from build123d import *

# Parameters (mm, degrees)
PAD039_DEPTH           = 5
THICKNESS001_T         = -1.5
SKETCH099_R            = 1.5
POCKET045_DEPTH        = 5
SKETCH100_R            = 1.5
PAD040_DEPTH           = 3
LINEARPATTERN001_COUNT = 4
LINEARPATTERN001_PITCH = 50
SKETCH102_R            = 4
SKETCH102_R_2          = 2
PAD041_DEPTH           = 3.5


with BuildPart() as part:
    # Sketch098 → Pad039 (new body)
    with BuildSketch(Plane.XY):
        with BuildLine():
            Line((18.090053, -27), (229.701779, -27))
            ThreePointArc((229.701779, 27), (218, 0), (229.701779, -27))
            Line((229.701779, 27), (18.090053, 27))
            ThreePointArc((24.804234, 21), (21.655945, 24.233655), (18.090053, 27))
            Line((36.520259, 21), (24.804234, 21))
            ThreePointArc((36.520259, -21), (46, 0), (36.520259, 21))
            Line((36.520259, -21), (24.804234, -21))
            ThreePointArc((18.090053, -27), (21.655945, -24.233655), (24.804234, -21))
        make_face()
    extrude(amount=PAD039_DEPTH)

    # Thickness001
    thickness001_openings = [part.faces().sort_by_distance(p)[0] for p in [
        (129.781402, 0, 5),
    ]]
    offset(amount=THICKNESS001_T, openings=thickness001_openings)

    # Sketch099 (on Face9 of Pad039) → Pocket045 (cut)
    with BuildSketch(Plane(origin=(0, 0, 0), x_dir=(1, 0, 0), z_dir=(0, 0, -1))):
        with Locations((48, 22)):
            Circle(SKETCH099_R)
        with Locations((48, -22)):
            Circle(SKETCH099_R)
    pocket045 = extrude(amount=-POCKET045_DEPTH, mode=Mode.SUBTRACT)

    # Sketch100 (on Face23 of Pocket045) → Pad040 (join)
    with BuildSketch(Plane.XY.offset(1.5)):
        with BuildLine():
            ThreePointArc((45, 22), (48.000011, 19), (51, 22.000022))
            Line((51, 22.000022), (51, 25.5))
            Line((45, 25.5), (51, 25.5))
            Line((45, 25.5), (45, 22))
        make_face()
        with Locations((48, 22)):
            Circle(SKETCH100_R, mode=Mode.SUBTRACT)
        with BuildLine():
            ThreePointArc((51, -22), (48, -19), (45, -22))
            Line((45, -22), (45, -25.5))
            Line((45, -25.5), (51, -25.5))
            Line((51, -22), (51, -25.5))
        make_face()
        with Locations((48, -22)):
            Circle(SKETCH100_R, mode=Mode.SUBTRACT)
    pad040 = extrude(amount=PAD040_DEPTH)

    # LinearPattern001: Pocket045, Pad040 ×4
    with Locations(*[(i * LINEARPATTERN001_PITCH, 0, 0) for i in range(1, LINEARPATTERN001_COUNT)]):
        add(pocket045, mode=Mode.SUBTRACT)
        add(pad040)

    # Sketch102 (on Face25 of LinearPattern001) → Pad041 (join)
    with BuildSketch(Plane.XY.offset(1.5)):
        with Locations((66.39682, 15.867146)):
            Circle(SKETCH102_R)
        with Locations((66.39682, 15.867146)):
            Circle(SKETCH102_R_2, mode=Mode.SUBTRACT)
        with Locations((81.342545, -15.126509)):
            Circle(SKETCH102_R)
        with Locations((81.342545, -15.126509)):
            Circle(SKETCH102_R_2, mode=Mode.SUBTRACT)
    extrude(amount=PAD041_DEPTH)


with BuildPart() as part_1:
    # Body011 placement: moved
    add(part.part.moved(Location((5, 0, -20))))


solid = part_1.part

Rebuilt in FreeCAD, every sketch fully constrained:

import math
import FreeCAD as App
import Part
import Sketcher


def faces_at(feature, points):
    """Names of the faces that lie closest to the given points."""
    faces = feature.Shape.Faces
    near = lambda p: min(range(len(faces)), key=lambda i: faces[i].distToShape(Part.Vertex(*p))[0])
    return sorted({f"Face{near(p) + 1}" for p in points})

doc = App.newDocument("Part")
body = doc.addObject("PartDesign::Body", "Body")

sketch1 = body.newObject("Sketcher::SketchObject", "Sketch")
sketch1.AttachmentSupport = (doc.getObject("XY_Plane"), [""])
sketch1.MapMode = "FlatFace"
sketch1.addGeometry(Part.LineSegment(App.Vector(18, -27, 0), App.Vector(230, -27, 0)), False)
sketch1.addGeometry(Part.ArcOfCircle(Part.Circle(App.Vector(255, 0, 0), App.Vector(0, 0, 1), 37), math.radians(133), math.radians(227)), False)
sketch1.addGeometry(Part.LineSegment(App.Vector(230, 27, 0), App.Vector(18, 27, 0)), False)
sketch1.addGeometry(Part.ArcOfCircle(Part.Circle(App.Vector(0, 0, 0), App.Vector(0, 0, 1), 33), math.radians(40.25), math.radians(56.18)), False)
sketch1.addGeometry(Part.LineSegment(App.Vector(25, 21, 0), App.Vector(37, 21, 0)), False)
sketch1.addGeometry(Part.ArcOfCircle(Part.Circle(App.Vector(18, 0, 0), App.Vector(0, 0, 1), 28), math.radians(-49), math.radians(49)), False)
sketch1.addGeometry(Part.LineSegment(App.Vector(37, -21, 0), App.Vector(25, -21, 0)), False)
sketch1.addGeometry(Part.ArcOfCircle(Part.Circle(App.Vector(0, 0, 0), App.Vector(0, 0, 1), 33), math.radians(-56.18), math.radians(-40.25)), False)
sketch1.addConstraint(Sketcher.Constraint("Coincident", 0, 2, 1, 2))
sketch1.addConstraint(Sketcher.Constraint("Coincident", 1, 1, 2, 1))
sketch1.addConstraint(Sketcher.Constraint("Coincident", 2, 2, 3, 2))
sketch1.addConstraint(Sketcher.Constraint("Coincident", 3, 1, 4, 1))
sketch1.addConstraint(Sketcher.Constraint("Coincident", 4, 2, 5, 2))
sketch1.addConstraint(Sketcher.Constraint("Coincident", 5, 1, 6, 1))
sketch1.addConstraint(Sketcher.Constraint("Coincident", 6, 2, 7, 2))
sketch1.addConstraint(Sketcher.Constraint("Coincident", 7, 1, 0, 1))
sketch1.addConstraint(Sketcher.Constraint("Horizontal", 0))
sketch1.addConstraint(Sketcher.Constraint("Horizontal", 2))
sketch1.addConstraint(Sketcher.Constraint("Horizontal", 4))
sketch1.addConstraint(Sketcher.Constraint("Horizontal", 6))
sketch1.addConstraint(Sketcher.Constraint("Equal", 3, 7))
sketch1.addConstraint(Sketcher.Constraint("Symmetric", 3, 3, 7, 3, -1))
sketch1.addConstraint(Sketcher.Constraint("Symmetric", 0, 2, 1, 1, -1))
sketch1.addConstraint(Sketcher.Constraint("Symmetric", 4, 2, 5, 1, -1))
sketch1.addConstraint(Sketcher.Constraint("Radius", 1, 36.999999))
sketch1.addConstraint(Sketcher.Constraint("Radius", 5, 28.0))
sketch1.addConstraint(Sketcher.Constraint("DistanceX", -1, 1, 1, 3, 254.999999))
sketch1.addConstraint(Sketcher.Constraint("DistanceX", -1, 1, 5, 3, 18.0))
sketch1.addConstraint(Sketcher.Constraint("DistanceY", 0, 2, -1, 1, 27.0))
sketch1.addConstraint(Sketcher.Constraint("DistanceY", -1, 1, 3, 1, 21.0))
sketch1.addConstraint(Sketcher.Constraint("Radius", 3, 32.500052))
sketch1.addConstraint(Sketcher.Constraint("DistanceX", 0, 1, 0, 2, 211.611726))
sketch1.addConstraint(Sketcher.Constraint("DistanceX", 4, 1, 4, 2, 11.716025))
pad1 = body.newObject("PartDesign::Pad", "Pad")
pad1.Profile = sketch1
pad1.Length = 5
doc.recompute()

thickness = body.newObject("PartDesign::Thickness", "Thickness")
thickness.Base = (pad1, faces_at(pad1, [(123.896, 0, 5)]))
thickness.Value = 1.5
thickness.Reversed = True
thickness.Join = "Arc"

sketch2 = body.newObject("Sketcher::SketchObject", "Sketch001")
sketch2.AttachmentSupport = (doc.getObject("XY_Plane"), [""])
sketch2.MapMode = "FlatFace"
sketch2.addGeometry(Part.Circle(App.Vector(48, -22, 0), App.Vector(0, 0, 1), 1.5), False)
sketch2.addGeometry(Part.Circle(App.Vector(48, 22, 0), App.Vector(0, 0, 1), 1.5), False)
sketch2.addConstraint(Sketcher.Constraint("Equal", 0, 1))
sketch2.addConstraint(Sketcher.Constraint("Symmetric", 0, 3, 1, 3, -1))
sketch2.addConstraint(Sketcher.Constraint("Diameter", 0, 3.0))
sketch2.addConstraint(Sketcher.Constraint("DistanceX", -1, 1, 0, 3, 48.0))
sketch2.addConstraint(Sketcher.Constraint("DistanceY", 0, 3, -1, 1, 22.0))
pocket1 = body.newObject("PartDesign::Pocket", "Pocket")
pocket1.Profile = sketch2
pocket1.Length = 5
pocket1.Reversed = True

sketch3 = body.newObject("Sketcher::SketchObject", "Sketch002")
sketch3.AttachmentSupport = (doc.getObject("XY_Plane"), [""])
sketch3.MapMode = "FlatFace"
sketch3.AttachmentOffset = App.Placement(App.Vector(0, 0, 1.5), App.Rotation())
sketch3.addGeometry(Part.ArcOfCircle(Part.Circle(App.Vector(48, 22, 0), App.Vector(0, 0, 1), 3), math.radians(180), math.radians(360.00042)), False)
sketch3.addGeometry(Part.LineSegment(App.Vector(51, 22.000022, 0), App.Vector(51, 25.5, 0)), False)
sketch3.addGeometry(Part.LineSegment(App.Vector(51, 25.5, 0), App.Vector(45, 25.5, 0)), False)
sketch3.addGeometry(Part.LineSegment(App.Vector(45, 25.5, 0), App.Vector(45, 22, 0)), False)
sketch3.addGeometry(Part.Circle(App.Vector(48, 22, 0), App.Vector(0, 0, 1), 1.5), False)
sketch3.addGeometry(Part.ArcOfCircle(Part.Circle(App.Vector(48, -22, 0), App.Vector(0, 0, 1), 3), math.radians(0), math.radians(180)), False)
sketch3.addGeometry(Part.LineSegment(App.Vector(45, -22, 0), App.Vector(45, -25.5, 0)), False)
sketch3.addGeometry(Part.LineSegment(App.Vector(45, -25.5, 0), App.Vector(51, -25.5, 0)), False)
sketch3.addGeometry(Part.LineSegment(App.Vector(51, -25.5, 0), App.Vector(51, -22, 0)), False)
sketch3.addGeometry(Part.Circle(App.Vector(48, -22, 0), App.Vector(0, 0, 1), 1.5), False)
sketch3.addConstraint(Sketcher.Constraint("Coincident", 0, 2, 1, 1))
sketch3.addConstraint(Sketcher.Constraint("Coincident", 1, 2, 2, 1))
sketch3.addConstraint(Sketcher.Constraint("Coincident", 2, 2, 3, 1))
sketch3.addConstraint(Sketcher.Constraint("Tangent", 3, 2, 0, 1))
sketch3.addConstraint(Sketcher.Constraint("Tangent", 5, 2, 6, 1))
sketch3.addConstraint(Sketcher.Constraint("Coincident", 6, 2, 7, 1))
sketch3.addConstraint(Sketcher.Constraint("Coincident", 7, 2, 8, 1))
sketch3.addConstraint(Sketcher.Constraint("Tangent", 8, 2, 5, 1))
sketch3.addConstraint(Sketcher.Constraint("Vertical", 1))
sketch3.addConstraint(Sketcher.Constraint("Horizontal", 2))
sketch3.addConstraint(Sketcher.Constraint("Vertical", 3))
sketch3.addConstraint(Sketcher.Constraint("Vertical", 6))
sketch3.addConstraint(Sketcher.Constraint("Horizontal", 7))
sketch3.addConstraint(Sketcher.Constraint("Vertical", 8))
sketch3.addConstraint(Sketcher.Constraint("Coincident", 4, 3, 0, 3))
sketch3.addConstraint(Sketcher.Constraint("Coincident", 9, 3, 5, 3))
sketch3.addConstraint(Sketcher.Constraint("Equal", 0, 5))
sketch3.addConstraint(Sketcher.Constraint("Equal", 4, 9))
sketch3.addConstraint(Sketcher.Constraint("Symmetric", 0, 3, 5, 3, -1))
sketch3.addConstraint(Sketcher.Constraint("Equal", 3, 6))
sketch3.addConstraint(Sketcher.Constraint("Diameter", 4, 3.0))
sketch3.addConstraint(Sketcher.Constraint("Radius", 0, 3.0))
sketch3.addConstraint(Sketcher.Constraint("DistanceY", 3, 2, 3, 1, 3.5))
sketch3.addConstraint(Sketcher.Constraint("DistanceX", -1, 1, 0, 3, 48.0))
sketch3.addConstraint(Sketcher.Constraint("DistanceY", -1, 1, 0, 3, 22.0))
sketch3.addConstraint(Sketcher.Constraint("DistanceY", 1, 1, 1, 2, 3.499978))
pad2 = body.newObject("PartDesign::Pad", "Pad001")
pad2.Profile = sketch3
pad2.Length = 3
doc.recompute()

linearpattern = body.newObject("PartDesign::LinearPattern", "LinearPattern")
linearpattern.Originals = [pocket1, pad2]
linearpattern.Direction = (doc.getObject("X_Axis"), [""])
linearpattern.Mode = "offset"
linearpattern.Offset = 50
linearpattern.Occurrences = 4
body.Tip = linearpattern

sketch4 = body.newObject("Sketcher::SketchObject", "Sketch003")
sketch4.AttachmentSupport = (doc.getObject("XY_Plane"), [""])
sketch4.MapMode = "FlatFace"
sketch4.AttachmentOffset = App.Placement(App.Vector(0, 0, 1.5), App.Rotation())
sketch4.addGeometry(Part.Circle(App.Vector(66.4, 15.9, 0), App.Vector(0, 0, 1), 4), False)
sketch4.addGeometry(Part.Circle(App.Vector(66.4, 15.9, 0), App.Vector(0, 0, 1), 2), False)
sketch4.addGeometry(Part.Circle(App.Vector(81.3, -15.1, 0), App.Vector(0, 0, 1), 4), False)
sketch4.addGeometry(Part.Circle(App.Vector(81.3, -15.1, 0), App.Vector(0, 0, 1), 2), False)
sketch4.addConstraint(Sketcher.Constraint("Coincident", 1, 3, 0, 3))
sketch4.addConstraint(Sketcher.Constraint("Coincident", 3, 3, 2, 3))
sketch4.addConstraint(Sketcher.Constraint("Equal", 0, 2))
sketch4.addConstraint(Sketcher.Constraint("Equal", 1, 3))
sketch4.addConstraint(Sketcher.Constraint("Diameter", 0, 8.0))
sketch4.addConstraint(Sketcher.Constraint("Diameter", 1, 4.0))
sketch4.addConstraint(Sketcher.Constraint("DistanceX", -1, 1, 0, 3, 66.39682))
sketch4.addConstraint(Sketcher.Constraint("DistanceY", 2, 3, -1, 1, 15.126509))
sketch4.addConstraint(Sketcher.Constraint("DistanceY", -1, 1, 0, 3, 15.867146))
sketch4.addConstraint(Sketcher.Constraint("DistanceX", -1, 1, 2, 3, 81.342545))
pad3 = body.newObject("PartDesign::Pad", "Pad002")
pad3.Profile = sketch4
pad3.Length = 3.5
body2 = doc.addObject("PartDesign::Body", "Body001")
doc.recompute()

body.Placement = App.Placement(App.Vector(5, 0, -20), App.Rotation(App.Vector(0, 0, 1), 0))
boolean = body2.newObject("PartDesign::Boolean", "Boolean")
boolean.Type = "Fuse"
boolean.addObjects([body])

doc.recompute()
